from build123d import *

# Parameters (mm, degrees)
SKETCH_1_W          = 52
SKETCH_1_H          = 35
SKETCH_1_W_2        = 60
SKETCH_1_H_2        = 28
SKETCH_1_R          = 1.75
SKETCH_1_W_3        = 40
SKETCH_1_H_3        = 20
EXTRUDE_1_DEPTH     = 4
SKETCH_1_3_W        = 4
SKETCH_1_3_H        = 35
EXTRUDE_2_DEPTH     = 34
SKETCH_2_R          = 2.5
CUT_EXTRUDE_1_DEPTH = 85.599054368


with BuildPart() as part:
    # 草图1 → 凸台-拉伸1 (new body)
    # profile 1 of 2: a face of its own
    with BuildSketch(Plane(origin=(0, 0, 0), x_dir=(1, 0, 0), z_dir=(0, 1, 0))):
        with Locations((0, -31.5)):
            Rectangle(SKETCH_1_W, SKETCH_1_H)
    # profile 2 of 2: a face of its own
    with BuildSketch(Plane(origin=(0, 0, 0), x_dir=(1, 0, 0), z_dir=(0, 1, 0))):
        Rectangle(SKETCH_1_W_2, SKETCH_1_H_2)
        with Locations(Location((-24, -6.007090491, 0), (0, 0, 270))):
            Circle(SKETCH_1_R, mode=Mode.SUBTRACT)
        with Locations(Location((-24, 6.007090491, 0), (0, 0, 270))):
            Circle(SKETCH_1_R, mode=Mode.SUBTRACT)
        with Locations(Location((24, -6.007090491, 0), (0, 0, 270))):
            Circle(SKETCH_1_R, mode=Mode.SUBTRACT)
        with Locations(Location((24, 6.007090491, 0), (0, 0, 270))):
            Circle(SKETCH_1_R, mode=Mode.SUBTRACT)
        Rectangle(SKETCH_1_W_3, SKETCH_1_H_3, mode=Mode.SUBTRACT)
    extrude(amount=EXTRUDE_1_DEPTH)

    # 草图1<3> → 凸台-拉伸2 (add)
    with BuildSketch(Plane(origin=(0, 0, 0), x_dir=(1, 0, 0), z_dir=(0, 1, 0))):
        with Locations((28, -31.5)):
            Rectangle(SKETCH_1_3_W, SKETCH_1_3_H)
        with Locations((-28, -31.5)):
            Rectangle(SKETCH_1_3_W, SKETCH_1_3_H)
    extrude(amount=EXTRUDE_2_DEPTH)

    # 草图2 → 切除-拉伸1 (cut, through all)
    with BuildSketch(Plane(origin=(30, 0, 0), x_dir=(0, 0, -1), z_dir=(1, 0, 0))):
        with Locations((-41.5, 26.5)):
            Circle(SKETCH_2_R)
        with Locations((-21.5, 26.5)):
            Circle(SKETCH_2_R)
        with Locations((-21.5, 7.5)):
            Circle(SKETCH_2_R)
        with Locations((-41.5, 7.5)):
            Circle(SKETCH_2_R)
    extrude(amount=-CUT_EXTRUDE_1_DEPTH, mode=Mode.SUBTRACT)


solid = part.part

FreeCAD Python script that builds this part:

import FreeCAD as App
import Part
import Sketcher

V = App.Vector


def add_polygon(sketch, points):
    """Adds a closed chain of lines whose ends are joined by coincident constraints."""
    first, n = sketch.GeometryCount, len(points)
    for a, b in zip(points, points[1:] + points[:1]):
        sketch.addGeometry(Part.LineSegment(App.Vector(*a, 0), App.Vector(*b, 0)), False)
    for i in range(n):
        sketch.addConstraint(Sketcher.Constraint("Coincident", first + i, 2, first + (i + 1) % n, 1))

doc = App.newDocument("Part")
body = doc.addObject("PartDesign::Body", "Body")

# Sketch on XZ plane
sketch1 = body.newObject("Sketcher::SketchObject", "Sketch")
sketch1.AttachmentSupport = (doc.getObject("XZ_Plane"), [""])
sketch1.MapMode = "FlatFace"
add_polygon(sketch1, [(-26, 14), (-26, 49), (26, 49), (26, 14), (30, 14), (30, -14), (-30, -14), (-30, 14)])  # lines 0-7
sketch1.addGeometry(Part.Circle(V(24, -6.00709, 0), V(0, 0, 1), 1.75), False)  # 8
sketch1.addGeometry(Part.Circle(V(-24, 6.00709, 0), V(0, 0, 1), 1.75), False)  # 9
sketch1.addGeometry(Part.Circle(V(24, 6.00709, 0), V(0, 0, 1), 1.75), False)  # 10
add_polygon(sketch1, [(20, 10), (-20, 10), (-20, -10), (20, -10)])  # lines 11-14
sketch1.addGeometry(Part.Circle(V(-24, -6.00709, 0), V(0, 0, 1), 1.75), False)  # 15
sketch1.addConstraint([
    Sketcher.Constraint("Vertical", 0),
    Sketcher.Constraint("Horizontal", 1),
    Sketcher.Constraint("Vertical", 2),
    Sketcher.Constraint("Horizontal", 3),
    Sketcher.Constraint("Vertical", 4),
    Sketcher.Constraint("Horizontal", 5),
    Sketcher.Constraint("Vertical", 6),
    Sketcher.Constraint("Horizontal", 7),
    Sketcher.Constraint("Horizontal", 11),
    Sketcher.Constraint("Vertical", 12),
    Sketcher.Constraint("Horizontal", 13),
    Sketcher.Constraint("Vertical", 14),
    Sketcher.Constraint("Equal", 8, 9),
    Sketcher.Constraint("Equal", 9, 10),
    Sketcher.Constraint("Equal", 10, 15),
    Sketcher.Constraint("Symmetric", 8, 3, 9, 3, -1, 1),
    Sketcher.Constraint("Symmetric", 10, 3, 15, 3, -1, 1),
    Sketcher.Constraint("Symmetric", 3, 2, 5, 2, -1, 1),
    Sketcher.Constraint("Symmetric", 11, 2, 13, 2, -1, 1),
    Sketcher.Constraint("Symmetric", 9, 3, 10, 3, -2),
    Sketcher.Constraint("Symmetric", 2, 2, 7, 2, -2),
    Sketcher.Constraint("Diameter", 8, 3.5),
    Sketcher.Constraint("DistanceX", 1, 1, 1, 2, 52.0),
    Sketcher.Constraint("DistanceX", 3, 1, 3, 2, 4.0),
    Sketcher.Constraint("DistanceX", 11, 2, 11, 1, 40.0),
    Sketcher.Constraint("DistanceY", 0, 1, 0, 2, 35.0),
    Sketcher.Constraint("DistanceY", 4, 2, 4, 1, 28.0),
    Sketcher.Constraint("DistanceY", 12, 2, 12, 1, 20.0),
    Sketcher.Constraint("DistanceX", -1, 1, 8, 3, 24.0),
    Sketcher.Constraint("DistanceY", 8, 3, -1, 1, 6.00709),
])
pad1 = body.newObject("PartDesign::Pad", "Pad")
pad1.Profile = sketch1
pad1.Length = 4
pad1.Reversed = True

# Sketch on XZ plane
sketch2 = body.newObject("Sketcher::SketchObject", "Sketch001")
sketch2.AttachmentSupport = (doc.getObject("XZ_Plane"), [""])
sketch2.MapMode = "FlatFace"
add_polygon(sketch2, [(26, 14), (26, 49), (30, 49), (30, 14)])  # lines 0-3
add_polygon(sketch2, [(-30, 14), (-30, 49), (-26, 49), (-26, 14)])  # lines 4-7
sketch2.addConstraint([
    Sketcher.Constraint("Vertical", 0),
    Sketcher.Constraint("Horizontal", 1),
    Sketcher.Constraint("Vertical", 2),
    Sketcher.Constraint("Horizontal", 3),
    Sketcher.Constraint("Vertical", 4),
    Sketcher.Constraint("Horizontal", 5),
    Sketcher.Constraint("Vertical", 6),
    Sketcher.Constraint("Horizontal", 7),
    Sketcher.Constraint("Symmetric", 1, 2, 4, 2, -2),
    Sketcher.Constraint("Symmetric", 3, 2, 6, 2, -2),
    Sketcher.Constraint("DistanceX", 1, 1, 1, 2, 4.0),
    Sketcher.Constraint("DistanceY", 0, 1, 0, 2, 35.0),
    Sketcher.Constraint("DistanceX", -1, 1, 0, 2, 26.0),
    Sketcher.Constraint("DistanceY", -1, 1, 0, 2, 49.0),
])
pad2 = body.newObject("PartDesign::Pad", "Pad001")
pad2.Profile = sketch2
pad2.Length = 34
pad2.Reversed = True

# Sketch on YZ plane
sketch3 = body.newObject("Sketcher::SketchObject", "Sketch002")
sketch3.AttachmentSupport = (doc.getObject("YZ_Plane"), [""])
sketch3.MapMode = "FlatFace"
sketch3.AttachmentOffset = App.Placement(V(0, 0, 30), App.Rotation())
sketch3.addGeometry([
    Part.Circle(V(26.5, 41.5, 0), V(0, 0, 1), 2.5),
    Part.Circle(V(26.5, 21.5, 0), V(0, 0, 1), 2.5),
    Part.Circle(V(7.5, 21.5, 0), V(0, 0, 1), 2.5),
    Part.Circle(V(7.5, 41.5, 0), V(0, 0, 1), 2.5),
], False)
sketch3.addConstraint([
    Sketcher.Constraint("Equal", 0, 1),
    Sketcher.Constraint("Equal", 1, 2),
    Sketcher.Constraint("Equal", 2, 3),
    Sketcher.Constraint("Horizontal", 1, 3, 2, 3),
    Sketcher.Constraint("Horizontal", 0, 3, 3, 3),
    Sketcher.Constraint("Vertical", 0, 3, 1, 3),
    Sketcher.Constraint("Vertical", 2, 3, 3, 3),
    Sketcher.Constraint("Diameter", 0, 5.0),
    Sketcher.Constraint("DistanceY", 1, 3, 0, 3, 20.0),
    Sketcher.Constraint("DistanceX", 2, 3, 1, 3, 19.0),
    Sketcher.Constraint("DistanceX", -1, 1, 0, 3, 26.5),
    Sketcher.Constraint("DistanceY", -1, 1, 0, 3, 41.5),
])
pocket1 = body.newObject("PartDesign::Pocket", "Pocket")
pocket1.Profile = sketch3
pocket1.Type = "ThroughAll"

doc.recompute()
